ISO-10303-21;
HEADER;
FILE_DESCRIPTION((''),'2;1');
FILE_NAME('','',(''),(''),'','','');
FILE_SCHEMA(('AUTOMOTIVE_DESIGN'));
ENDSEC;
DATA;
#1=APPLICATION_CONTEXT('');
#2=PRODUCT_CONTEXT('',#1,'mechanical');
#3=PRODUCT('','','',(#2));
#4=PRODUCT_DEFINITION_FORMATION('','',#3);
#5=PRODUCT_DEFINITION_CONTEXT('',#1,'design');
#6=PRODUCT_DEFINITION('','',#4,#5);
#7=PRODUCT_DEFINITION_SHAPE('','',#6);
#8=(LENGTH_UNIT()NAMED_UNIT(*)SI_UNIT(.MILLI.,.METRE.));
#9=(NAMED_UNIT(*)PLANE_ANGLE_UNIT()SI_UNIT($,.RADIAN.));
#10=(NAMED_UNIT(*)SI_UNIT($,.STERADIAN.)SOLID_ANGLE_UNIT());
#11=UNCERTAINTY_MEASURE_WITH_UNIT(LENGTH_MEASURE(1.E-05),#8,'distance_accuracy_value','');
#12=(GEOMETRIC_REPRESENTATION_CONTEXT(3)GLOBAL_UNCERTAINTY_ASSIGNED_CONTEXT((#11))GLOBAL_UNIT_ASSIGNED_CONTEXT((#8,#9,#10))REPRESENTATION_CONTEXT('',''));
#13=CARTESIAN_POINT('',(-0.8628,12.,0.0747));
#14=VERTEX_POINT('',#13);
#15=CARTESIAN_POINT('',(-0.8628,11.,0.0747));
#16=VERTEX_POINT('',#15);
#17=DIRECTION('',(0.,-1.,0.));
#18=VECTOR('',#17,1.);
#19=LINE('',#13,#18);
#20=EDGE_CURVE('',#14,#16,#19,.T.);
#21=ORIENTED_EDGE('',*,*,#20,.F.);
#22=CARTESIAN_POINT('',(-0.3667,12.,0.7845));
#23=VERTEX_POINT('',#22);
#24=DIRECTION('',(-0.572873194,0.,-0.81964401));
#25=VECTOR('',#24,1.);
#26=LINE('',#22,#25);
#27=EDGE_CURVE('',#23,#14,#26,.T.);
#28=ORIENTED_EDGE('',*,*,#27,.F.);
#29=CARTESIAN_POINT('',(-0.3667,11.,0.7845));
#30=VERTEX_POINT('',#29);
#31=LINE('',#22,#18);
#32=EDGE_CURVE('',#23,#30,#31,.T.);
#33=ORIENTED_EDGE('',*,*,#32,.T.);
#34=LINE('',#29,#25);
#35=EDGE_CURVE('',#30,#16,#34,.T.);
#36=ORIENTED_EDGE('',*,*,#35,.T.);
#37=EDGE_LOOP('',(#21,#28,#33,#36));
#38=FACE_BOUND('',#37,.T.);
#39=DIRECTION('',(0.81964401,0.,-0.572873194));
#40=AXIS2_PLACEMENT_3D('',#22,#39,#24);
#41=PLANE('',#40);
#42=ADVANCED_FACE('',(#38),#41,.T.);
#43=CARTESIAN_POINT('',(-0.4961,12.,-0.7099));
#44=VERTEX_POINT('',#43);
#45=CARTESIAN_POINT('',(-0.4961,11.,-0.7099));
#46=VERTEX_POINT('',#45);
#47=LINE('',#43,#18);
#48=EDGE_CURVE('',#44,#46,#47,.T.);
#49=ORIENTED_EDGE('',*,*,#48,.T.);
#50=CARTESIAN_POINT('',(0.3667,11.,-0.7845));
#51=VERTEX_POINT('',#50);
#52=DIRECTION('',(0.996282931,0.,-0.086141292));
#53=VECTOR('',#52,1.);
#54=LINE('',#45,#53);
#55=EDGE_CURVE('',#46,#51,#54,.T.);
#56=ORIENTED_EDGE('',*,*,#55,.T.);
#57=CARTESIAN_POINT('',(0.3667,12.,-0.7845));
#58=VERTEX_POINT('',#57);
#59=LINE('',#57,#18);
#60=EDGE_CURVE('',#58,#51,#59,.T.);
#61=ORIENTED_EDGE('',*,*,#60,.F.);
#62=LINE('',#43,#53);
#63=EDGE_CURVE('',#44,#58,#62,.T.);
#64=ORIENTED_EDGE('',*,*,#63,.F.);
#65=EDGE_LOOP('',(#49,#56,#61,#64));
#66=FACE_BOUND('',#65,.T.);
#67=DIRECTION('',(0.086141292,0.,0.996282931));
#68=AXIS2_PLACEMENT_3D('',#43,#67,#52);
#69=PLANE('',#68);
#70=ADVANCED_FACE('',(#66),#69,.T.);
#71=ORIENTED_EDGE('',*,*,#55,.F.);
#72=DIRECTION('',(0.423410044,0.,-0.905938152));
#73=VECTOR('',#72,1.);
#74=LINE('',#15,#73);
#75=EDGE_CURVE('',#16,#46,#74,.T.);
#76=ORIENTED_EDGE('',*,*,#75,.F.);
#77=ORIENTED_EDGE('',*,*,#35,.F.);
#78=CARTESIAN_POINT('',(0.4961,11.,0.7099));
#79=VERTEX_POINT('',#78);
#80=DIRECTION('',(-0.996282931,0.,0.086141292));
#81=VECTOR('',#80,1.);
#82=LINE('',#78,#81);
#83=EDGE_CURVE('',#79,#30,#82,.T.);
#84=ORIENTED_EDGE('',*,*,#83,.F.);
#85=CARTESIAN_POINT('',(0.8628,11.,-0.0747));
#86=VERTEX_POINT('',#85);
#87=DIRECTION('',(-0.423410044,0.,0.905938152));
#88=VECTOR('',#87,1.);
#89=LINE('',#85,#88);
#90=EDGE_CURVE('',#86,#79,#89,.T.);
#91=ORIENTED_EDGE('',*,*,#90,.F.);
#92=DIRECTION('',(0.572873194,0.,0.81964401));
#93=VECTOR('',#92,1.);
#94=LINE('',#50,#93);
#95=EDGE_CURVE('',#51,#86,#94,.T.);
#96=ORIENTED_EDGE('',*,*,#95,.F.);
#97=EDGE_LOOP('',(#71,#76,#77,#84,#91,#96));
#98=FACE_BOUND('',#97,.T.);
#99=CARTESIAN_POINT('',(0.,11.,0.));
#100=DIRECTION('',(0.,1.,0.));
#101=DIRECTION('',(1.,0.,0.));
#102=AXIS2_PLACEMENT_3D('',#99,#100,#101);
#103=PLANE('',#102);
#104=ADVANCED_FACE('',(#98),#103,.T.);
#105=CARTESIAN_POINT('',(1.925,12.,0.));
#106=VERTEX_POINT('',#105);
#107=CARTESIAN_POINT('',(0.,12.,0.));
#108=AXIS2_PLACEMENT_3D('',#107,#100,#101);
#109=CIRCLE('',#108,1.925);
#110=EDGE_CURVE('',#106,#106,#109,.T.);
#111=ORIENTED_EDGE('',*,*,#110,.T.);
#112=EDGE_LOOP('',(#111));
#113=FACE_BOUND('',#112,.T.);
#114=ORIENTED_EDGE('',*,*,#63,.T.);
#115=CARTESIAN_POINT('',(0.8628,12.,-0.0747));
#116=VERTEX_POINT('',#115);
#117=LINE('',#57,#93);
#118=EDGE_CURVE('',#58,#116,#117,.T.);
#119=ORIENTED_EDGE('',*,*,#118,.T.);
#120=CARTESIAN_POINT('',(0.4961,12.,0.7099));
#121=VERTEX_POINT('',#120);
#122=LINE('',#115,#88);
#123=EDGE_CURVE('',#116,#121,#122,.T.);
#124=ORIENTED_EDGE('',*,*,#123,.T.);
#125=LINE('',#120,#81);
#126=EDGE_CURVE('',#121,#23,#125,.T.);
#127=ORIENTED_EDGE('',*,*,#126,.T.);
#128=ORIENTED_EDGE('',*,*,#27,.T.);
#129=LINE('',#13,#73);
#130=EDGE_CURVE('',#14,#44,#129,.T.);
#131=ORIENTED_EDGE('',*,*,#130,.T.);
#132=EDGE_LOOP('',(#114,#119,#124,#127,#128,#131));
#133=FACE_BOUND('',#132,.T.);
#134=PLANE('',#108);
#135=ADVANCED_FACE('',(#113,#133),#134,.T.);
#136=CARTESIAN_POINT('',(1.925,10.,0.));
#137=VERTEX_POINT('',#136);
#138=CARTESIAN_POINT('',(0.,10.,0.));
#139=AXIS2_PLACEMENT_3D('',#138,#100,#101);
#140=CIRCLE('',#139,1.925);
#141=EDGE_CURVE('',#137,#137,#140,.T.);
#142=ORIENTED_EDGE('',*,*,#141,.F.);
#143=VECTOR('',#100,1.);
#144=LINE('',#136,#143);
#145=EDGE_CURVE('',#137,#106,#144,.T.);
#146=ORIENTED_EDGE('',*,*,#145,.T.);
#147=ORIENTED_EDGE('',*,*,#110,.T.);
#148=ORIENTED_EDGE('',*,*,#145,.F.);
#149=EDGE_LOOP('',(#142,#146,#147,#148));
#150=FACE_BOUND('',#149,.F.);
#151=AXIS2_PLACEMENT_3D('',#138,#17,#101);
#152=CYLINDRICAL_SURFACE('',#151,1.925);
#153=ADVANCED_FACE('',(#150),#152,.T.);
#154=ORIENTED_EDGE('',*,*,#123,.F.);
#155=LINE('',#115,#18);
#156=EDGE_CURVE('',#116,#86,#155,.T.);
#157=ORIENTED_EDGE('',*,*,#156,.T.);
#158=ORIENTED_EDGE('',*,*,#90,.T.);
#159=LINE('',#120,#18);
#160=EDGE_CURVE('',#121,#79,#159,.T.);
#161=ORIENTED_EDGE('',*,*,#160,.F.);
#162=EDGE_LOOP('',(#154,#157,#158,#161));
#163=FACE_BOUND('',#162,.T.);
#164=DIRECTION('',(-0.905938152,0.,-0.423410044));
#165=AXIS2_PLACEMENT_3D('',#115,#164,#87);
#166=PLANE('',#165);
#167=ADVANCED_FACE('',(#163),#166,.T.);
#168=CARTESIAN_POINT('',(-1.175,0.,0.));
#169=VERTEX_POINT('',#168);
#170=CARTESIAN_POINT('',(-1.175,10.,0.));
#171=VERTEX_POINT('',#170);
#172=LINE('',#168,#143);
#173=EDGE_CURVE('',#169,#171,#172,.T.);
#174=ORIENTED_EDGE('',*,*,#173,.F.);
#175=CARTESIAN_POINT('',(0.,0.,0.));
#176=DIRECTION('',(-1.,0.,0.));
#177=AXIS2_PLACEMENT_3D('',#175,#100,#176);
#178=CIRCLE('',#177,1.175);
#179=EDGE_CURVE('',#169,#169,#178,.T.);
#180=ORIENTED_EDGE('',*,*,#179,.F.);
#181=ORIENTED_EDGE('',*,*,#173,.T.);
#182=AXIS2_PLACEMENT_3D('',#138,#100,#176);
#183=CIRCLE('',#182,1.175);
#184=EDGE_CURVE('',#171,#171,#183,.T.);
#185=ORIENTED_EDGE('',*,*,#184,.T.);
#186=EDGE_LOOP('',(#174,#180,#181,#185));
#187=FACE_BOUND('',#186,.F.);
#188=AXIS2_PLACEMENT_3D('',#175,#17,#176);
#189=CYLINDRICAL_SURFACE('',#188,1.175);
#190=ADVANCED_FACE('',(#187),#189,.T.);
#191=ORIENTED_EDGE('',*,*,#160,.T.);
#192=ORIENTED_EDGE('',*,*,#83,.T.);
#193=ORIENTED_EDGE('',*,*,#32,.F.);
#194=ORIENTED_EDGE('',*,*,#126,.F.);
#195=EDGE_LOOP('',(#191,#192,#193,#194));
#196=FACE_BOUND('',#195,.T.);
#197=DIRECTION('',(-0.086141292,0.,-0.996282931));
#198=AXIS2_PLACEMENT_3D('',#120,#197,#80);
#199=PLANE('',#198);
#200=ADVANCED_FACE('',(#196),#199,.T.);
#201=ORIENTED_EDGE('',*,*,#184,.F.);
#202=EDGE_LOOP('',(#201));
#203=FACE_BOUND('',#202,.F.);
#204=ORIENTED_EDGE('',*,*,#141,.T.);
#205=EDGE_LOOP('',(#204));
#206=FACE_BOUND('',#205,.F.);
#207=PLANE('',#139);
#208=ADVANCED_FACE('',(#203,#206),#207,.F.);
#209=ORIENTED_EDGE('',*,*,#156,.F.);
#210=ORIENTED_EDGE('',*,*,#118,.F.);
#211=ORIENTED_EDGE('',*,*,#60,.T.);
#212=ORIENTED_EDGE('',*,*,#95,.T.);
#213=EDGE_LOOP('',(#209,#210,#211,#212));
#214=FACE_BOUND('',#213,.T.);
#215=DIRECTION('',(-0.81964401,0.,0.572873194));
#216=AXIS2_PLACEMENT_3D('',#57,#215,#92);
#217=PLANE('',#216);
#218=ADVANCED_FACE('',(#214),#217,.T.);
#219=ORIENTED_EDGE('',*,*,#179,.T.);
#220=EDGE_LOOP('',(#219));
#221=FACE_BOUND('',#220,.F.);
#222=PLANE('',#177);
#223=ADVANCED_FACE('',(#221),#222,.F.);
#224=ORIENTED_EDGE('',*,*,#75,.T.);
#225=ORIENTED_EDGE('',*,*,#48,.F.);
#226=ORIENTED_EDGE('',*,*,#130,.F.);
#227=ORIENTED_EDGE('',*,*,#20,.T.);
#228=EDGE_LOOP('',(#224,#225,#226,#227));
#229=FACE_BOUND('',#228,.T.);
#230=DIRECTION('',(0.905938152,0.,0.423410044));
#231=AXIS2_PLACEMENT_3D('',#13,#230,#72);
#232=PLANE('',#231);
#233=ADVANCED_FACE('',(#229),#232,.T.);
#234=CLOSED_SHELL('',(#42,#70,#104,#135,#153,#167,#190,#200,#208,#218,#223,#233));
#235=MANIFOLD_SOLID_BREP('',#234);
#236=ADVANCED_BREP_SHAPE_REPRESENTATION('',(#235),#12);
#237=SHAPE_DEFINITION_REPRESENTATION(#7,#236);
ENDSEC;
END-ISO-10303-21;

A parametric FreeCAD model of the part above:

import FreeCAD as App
import Part
import Sketcher
Q = App.Units.Quantity


def add_polygon(sketch, points):
    """Adds a closed chain of lines whose ends are joined by coincident constraints."""
    first, n = sketch.GeometryCount, len(points)
    for a, b in zip(points, points[1:] + points[:1]):
        sketch.addGeometry(Part.LineSegment(App.Vector(*a, 0), App.Vector(*b, 0)), False)
    for i in range(n):
        sketch.addConstraint(Sketcher.Constraint("Coincident", first + i, 2, first + (i + 1) % n, 1))

doc = App.newDocument("Part")
body = doc.addObject("PartDesign::Body", "Body")

# Sketch on XZ plane
sketch1 = body.newObject("Sketcher::SketchObject", "Sketch")
sketch1.AttachmentSupport = (doc.getObject("XZ_Plane"), [""])
sketch1.MapMode = "FlatFace"
sketch1.addGeometry(Part.Circle(App.Vector(0, 0, 0), App.Vector(0, 0, 1), 1.2), False)
sketch1.addConstraint(Sketcher.Constraint("Coincident", 0, 3, -1, 1))
sketch1.addConstraint(Sketcher.Constraint("Diameter", 0, 2.35))
pad1 = body.newObject("PartDesign::Pad", "Pad")
pad1.Profile = sketch1
pad1.Length = 10
pad1.Reversed = True

# Sketch on XZ plane
sketch2 = body.newObject("Sketcher::SketchObject", "Sketch001")
sketch2.AttachmentSupport = (doc.getObject("XZ_Plane"), [""])
sketch2.MapMode = "FlatFace"
sketch2.AttachmentOffset = App.Placement(App.Vector(0, 0, -10), App.Rotation())
sketch2.addGeometry(Part.Circle(App.Vector(0, 0, 0), App.Vector(0, 0, 1), 1.9), False)
sketch2.addConstraint(Sketcher.Constraint("Coincident", 0, 3, -1, 1))
sketch2.addConstraint(Sketcher.Constraint("Diameter", 0, 3.85))
pad2 = body.newObject("PartDesign::Pad", "Pad001")
pad2.Profile = sketch2
pad2.Length = 2
pad2.Reversed = True

# Sketch on XZ plane
sketch3 = body.newObject("Sketcher::SketchObject", "Sketch002")
sketch3.AttachmentSupport = (doc.getObject("XZ_Plane"), [""])
sketch3.MapMode = "FlatFace"
sketch3.AttachmentOffset = App.Placement(App.Vector(0, 0, -12), App.Rotation())
add_polygon(sketch3, [(0.4, -0.8), (-0.5, -0.7), (-0.9, 0.1), (-0.4, 0.8), (0.5, 0.7), (0.9, -0.1)])  # lines 0-5
sketch3.addConstraint(Sketcher.Constraint("Symmetric", 0, 2, 3, 2, -1, 1))
sketch3.addConstraint(Sketcher.Constraint("Symmetric", 1, 2, 4, 2, -1, 1))
sketch3.addConstraint(Sketcher.Constraint("Symmetric", 2, 2, 5, 2, -1, 1))
sketch3.addConstraint(Sketcher.Constraint("Equal", 0, 1))
sketch3.addConstraint(Sketcher.Constraint("Equal", 1, 2))
sketch3.addConstraint(Sketcher.Constraint("Angle", 1, Q("115.05 deg")))
sketch3.addConstraint(Sketcher.Constraint("Angle", 2, Q("55.0492 deg")))
sketch3.addConstraint(Sketcher.Constraint("DistanceY", 0, 2, -1, 1, 0.71))
sketch3.addConstraint(Sketcher.Constraint("Distance", 0, 0.866))
pocket1 = body.newObject("PartDesign::Pocket", "Pocket")
pocket1.Profile = sketch3
pocket1.Length = 1
pocket1.Reversed = True

doc.recompute()
